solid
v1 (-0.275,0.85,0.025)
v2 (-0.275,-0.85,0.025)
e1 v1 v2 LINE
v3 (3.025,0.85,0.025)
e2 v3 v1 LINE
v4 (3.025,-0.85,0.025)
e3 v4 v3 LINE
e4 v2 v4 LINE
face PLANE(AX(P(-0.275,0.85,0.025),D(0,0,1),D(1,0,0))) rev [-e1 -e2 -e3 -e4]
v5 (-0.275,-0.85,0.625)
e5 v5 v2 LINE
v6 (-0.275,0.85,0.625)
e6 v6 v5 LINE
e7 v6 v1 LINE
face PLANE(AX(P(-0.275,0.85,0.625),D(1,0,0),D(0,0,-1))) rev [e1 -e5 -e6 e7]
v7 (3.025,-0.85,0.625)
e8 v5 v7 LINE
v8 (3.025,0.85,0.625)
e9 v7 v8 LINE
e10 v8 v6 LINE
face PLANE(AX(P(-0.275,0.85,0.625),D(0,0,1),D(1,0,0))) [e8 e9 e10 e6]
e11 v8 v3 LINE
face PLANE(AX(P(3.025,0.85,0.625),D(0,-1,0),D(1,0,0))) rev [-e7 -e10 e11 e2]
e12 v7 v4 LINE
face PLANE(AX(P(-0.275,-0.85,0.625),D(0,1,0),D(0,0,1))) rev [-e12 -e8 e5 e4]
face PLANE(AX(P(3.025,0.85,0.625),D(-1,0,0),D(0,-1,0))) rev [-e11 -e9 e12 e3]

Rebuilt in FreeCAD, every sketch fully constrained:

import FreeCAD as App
import Part
import Sketcher

V = App.Vector
Q = App.Units.Quantity


def add_polygon(sketch, points):
    """Adds a closed chain of lines whose ends are joined by coincident constraints."""
    first, n = sketch.GeometryCount, len(points)
    for a, b in zip(points, points[1:] + points[:1]):
        sketch.addGeometry(Part.LineSegment(App.Vector(*a, 0), App.Vector(*b, 0)), False)
    for i in range(n):
        sketch.addConstraint(Sketcher.Constraint("Coincident", first + i, 2, first + (i + 1) % n, 1))

doc = App.newDocument("Part")
body = doc.addObject("PartDesign::Body", "Body")

# Sketch on XY plane
sketch1 = body.newObject("Sketcher::SketchObject", "Sketch")
sketch1.AttachmentSupport = (doc.getObject("XY_Plane"), [""])
sketch1.MapMode = "FlatFace"
sketch1.AttachmentOffset = App.Placement(V(0, 0, 0.025), App.Rotation())
add_polygon(sketch1, [(-0.3, 0.8), (-0.3, -0.8), (3, -0.8), (3, 0.8)])  # lines 0-3
sketch1.addConstraint([
    Sketcher.Constraint("Vertical", 0),
    Sketcher.Constraint("Horizontal", 1),
    Sketcher.Constraint("Vertical", 2),
    Sketcher.Constraint("Horizontal", 3),
    Sketcher.Constraint("DistanceX", 1, 1, 1, 2, Q("3.3 mm")),
    Sketcher.Constraint("DistanceY", 0, 2, 0, 1, Q("1.7 mm")),
    Sketcher.Constraint("DistanceY", 0, 2, -1, 1, Q("0.85 mm")),
    Sketcher.Constraint("DistanceX", 0, 2, -1, 1, Q("0.275 mm")),
])
pad1 = body.newObject("PartDesign::Pad", "Pad")
pad1.Profile = sketch1
pad1.Length = 0.6

doc.recompute()
